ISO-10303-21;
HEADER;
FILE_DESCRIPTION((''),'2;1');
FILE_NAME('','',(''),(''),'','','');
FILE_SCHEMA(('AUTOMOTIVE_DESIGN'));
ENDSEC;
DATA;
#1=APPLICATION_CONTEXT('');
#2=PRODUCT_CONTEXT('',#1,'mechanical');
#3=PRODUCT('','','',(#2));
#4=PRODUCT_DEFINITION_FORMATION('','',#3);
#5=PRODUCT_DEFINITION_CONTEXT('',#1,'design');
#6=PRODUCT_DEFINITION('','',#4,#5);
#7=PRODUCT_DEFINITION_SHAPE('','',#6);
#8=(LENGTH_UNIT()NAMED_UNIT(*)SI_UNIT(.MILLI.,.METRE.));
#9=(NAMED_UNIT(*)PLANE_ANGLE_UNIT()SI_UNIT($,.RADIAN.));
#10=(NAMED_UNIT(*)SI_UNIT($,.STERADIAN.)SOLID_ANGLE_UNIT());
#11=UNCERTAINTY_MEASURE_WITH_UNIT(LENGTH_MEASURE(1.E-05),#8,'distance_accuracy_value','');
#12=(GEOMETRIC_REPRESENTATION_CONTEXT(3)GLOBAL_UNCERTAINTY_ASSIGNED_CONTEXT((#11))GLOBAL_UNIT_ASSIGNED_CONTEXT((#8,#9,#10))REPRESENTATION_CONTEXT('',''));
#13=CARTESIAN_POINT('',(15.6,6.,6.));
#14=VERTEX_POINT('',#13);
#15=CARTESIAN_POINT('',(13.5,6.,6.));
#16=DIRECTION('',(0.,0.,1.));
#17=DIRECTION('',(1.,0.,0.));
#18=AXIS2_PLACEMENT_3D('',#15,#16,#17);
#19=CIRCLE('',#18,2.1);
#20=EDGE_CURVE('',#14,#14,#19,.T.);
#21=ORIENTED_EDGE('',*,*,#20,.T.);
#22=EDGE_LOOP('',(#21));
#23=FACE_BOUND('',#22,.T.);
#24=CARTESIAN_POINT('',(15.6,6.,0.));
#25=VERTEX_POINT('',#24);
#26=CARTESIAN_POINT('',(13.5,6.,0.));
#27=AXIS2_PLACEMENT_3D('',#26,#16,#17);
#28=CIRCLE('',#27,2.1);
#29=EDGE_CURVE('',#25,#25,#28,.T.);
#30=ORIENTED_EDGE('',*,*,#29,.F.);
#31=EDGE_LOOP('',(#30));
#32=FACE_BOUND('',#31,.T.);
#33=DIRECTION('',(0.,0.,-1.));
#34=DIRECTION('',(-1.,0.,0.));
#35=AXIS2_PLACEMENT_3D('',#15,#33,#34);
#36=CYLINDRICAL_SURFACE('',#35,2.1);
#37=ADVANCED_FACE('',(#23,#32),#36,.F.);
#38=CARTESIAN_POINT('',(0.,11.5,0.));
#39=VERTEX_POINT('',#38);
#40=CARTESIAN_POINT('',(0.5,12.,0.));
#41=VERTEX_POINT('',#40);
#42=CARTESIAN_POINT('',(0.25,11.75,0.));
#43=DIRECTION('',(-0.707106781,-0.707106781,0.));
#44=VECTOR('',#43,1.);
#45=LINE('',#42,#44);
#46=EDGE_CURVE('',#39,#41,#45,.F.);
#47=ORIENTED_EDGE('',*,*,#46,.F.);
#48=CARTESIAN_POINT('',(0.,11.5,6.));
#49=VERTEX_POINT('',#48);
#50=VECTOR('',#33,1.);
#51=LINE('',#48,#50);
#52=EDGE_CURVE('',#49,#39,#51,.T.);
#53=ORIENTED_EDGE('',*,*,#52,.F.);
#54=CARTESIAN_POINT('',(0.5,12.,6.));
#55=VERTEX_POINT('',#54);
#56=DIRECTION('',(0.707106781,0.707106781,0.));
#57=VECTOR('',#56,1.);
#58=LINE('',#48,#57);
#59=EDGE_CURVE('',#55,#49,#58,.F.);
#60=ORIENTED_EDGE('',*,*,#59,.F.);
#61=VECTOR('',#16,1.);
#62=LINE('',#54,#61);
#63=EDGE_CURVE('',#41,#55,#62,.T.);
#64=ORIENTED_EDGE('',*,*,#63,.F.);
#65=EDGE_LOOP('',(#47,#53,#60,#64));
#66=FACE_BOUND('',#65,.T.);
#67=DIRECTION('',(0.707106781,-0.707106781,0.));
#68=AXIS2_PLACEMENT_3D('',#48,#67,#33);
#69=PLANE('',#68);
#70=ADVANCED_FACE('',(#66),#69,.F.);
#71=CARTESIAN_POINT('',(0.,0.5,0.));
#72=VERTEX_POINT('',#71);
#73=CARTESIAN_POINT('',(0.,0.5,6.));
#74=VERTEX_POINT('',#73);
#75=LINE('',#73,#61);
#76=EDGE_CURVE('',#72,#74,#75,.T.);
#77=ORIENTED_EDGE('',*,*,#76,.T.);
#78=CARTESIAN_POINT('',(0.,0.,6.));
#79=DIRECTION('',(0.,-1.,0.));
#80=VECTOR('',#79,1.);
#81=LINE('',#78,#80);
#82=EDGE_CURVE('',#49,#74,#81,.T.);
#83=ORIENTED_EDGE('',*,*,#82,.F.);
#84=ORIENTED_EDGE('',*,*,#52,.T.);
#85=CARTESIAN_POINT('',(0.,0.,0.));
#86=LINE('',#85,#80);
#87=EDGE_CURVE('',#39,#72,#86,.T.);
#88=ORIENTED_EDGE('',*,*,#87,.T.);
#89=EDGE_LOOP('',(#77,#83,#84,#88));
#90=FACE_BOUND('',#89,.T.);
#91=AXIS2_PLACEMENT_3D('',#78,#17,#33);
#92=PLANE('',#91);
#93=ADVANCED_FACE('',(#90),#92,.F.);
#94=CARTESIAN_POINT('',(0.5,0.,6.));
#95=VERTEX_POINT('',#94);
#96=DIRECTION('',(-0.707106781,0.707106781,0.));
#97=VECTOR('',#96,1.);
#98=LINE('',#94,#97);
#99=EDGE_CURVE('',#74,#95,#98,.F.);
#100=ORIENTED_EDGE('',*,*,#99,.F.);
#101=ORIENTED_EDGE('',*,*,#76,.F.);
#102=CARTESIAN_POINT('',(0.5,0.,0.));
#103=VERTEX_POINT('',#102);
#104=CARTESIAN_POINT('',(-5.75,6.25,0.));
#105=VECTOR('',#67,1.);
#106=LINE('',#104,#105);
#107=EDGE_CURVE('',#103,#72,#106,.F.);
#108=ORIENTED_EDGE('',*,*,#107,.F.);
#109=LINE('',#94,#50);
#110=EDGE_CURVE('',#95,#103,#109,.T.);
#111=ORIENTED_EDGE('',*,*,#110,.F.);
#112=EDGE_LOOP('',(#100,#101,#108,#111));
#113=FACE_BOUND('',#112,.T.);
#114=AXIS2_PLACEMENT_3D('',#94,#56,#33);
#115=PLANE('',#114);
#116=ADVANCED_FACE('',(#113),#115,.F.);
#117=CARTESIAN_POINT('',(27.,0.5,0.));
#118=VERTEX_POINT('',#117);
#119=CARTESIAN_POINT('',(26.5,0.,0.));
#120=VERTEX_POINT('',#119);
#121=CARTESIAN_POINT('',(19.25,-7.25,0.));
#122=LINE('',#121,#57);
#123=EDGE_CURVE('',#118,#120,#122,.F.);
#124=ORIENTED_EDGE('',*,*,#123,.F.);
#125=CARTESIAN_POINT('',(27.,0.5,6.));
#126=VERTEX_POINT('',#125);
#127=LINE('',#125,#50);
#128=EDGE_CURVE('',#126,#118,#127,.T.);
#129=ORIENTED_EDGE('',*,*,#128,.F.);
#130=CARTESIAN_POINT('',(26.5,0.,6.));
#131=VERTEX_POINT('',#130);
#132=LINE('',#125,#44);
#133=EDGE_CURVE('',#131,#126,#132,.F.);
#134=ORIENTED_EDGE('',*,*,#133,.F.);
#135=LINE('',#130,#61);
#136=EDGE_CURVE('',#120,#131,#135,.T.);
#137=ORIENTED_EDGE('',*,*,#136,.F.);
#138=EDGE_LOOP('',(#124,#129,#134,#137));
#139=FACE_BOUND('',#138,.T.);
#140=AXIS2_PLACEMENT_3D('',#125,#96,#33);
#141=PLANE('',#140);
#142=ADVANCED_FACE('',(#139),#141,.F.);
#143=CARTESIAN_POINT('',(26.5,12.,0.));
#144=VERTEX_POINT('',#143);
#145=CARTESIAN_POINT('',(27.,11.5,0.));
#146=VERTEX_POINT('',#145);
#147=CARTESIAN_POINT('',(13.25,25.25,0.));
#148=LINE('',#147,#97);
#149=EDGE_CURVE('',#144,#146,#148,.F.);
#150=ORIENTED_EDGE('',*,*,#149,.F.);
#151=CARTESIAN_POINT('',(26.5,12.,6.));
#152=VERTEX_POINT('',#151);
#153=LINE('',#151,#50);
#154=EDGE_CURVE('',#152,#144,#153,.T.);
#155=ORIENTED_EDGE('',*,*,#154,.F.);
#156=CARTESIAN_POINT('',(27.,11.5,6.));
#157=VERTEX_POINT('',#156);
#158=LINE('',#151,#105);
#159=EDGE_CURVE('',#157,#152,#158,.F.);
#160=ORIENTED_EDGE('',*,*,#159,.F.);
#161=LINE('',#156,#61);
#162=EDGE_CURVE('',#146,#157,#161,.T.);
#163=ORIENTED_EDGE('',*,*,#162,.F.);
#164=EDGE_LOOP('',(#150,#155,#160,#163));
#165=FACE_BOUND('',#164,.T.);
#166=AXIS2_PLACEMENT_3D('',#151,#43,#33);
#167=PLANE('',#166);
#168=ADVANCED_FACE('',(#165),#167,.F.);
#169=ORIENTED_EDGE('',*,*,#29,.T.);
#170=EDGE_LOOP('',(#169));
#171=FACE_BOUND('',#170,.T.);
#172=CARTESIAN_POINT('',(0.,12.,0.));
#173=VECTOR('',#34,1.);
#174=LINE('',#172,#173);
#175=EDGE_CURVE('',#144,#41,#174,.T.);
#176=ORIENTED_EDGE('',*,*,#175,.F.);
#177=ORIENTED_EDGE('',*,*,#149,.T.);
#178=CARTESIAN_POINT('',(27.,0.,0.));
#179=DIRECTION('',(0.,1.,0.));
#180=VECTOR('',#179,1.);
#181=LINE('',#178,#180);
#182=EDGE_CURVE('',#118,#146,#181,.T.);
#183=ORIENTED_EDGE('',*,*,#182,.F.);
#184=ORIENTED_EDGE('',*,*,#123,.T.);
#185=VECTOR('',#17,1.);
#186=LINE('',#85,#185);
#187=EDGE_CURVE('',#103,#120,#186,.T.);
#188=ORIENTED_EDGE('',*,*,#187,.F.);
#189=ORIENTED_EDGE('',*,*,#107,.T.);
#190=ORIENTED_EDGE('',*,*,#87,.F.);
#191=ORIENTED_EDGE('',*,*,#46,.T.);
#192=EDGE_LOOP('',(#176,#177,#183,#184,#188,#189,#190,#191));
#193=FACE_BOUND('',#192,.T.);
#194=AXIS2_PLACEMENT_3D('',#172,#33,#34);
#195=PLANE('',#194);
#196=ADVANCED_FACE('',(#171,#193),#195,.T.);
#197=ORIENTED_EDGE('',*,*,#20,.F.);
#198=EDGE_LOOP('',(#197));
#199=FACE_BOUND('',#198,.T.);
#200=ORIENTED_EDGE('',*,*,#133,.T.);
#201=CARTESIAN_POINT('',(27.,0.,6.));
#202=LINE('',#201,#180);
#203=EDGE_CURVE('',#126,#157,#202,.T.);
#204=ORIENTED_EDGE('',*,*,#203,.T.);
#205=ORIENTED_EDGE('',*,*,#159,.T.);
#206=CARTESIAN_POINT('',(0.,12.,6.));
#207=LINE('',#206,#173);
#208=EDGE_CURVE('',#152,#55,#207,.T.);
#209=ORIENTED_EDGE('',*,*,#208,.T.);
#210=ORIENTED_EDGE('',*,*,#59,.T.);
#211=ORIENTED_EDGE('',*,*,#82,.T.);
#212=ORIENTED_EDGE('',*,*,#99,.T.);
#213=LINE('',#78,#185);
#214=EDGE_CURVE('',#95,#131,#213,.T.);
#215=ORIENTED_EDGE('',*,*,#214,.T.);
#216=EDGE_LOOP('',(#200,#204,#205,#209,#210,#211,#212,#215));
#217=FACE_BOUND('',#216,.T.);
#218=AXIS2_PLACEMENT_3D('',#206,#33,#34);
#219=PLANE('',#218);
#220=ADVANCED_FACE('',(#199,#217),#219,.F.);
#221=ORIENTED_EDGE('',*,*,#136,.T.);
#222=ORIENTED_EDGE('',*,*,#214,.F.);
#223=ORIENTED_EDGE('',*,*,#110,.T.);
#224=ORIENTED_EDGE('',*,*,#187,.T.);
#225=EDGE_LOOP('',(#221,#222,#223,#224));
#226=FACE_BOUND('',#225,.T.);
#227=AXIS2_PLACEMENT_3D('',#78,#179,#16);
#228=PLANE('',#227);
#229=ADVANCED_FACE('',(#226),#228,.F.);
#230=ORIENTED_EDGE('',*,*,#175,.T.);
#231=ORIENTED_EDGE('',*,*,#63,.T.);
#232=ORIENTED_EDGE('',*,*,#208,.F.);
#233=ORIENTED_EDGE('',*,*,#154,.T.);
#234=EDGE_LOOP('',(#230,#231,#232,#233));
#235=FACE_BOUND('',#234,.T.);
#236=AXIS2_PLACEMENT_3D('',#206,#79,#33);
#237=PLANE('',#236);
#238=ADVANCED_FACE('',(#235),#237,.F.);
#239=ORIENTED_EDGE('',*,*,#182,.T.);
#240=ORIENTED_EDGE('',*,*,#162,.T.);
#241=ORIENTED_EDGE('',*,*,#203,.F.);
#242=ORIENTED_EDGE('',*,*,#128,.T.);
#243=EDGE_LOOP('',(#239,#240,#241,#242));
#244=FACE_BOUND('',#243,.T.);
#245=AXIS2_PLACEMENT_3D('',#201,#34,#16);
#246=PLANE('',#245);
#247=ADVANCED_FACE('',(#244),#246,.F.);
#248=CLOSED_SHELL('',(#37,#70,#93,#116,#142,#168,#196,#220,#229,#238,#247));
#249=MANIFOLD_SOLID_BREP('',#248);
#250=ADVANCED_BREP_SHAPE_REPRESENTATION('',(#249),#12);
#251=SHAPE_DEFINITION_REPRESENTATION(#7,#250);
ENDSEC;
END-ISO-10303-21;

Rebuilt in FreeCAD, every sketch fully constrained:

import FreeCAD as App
import Part
import Sketcher
from FreeCAD import Vector


def edges_at(feature, points):
    """Names of the edges that pass closest to the given points."""
    edges = feature.Shape.Edges
    near = lambda p: min(range(len(edges)), key=lambda i: edges[i].distToShape(Part.Vertex(*p))[0])
    return sorted({f"Edge{near(p) + 1}" for p in points})


def add_polygon(sketch, points):
    """Adds a closed chain of lines whose ends are joined by coincident constraints."""
    first, n = sketch.GeometryCount, len(points)
    for a, b in zip(points, points[1:] + points[:1]):
        sketch.addGeometry(Part.LineSegment(App.Vector(*a, 0), App.Vector(*b, 0)), False)
    for i in range(n):
        sketch.addConstraint(Sketcher.Constraint("Coincident", first + i, 2, first + (i + 1) % n, 1))

doc = App.newDocument("Part")
body = doc.addObject("PartDesign::Body", "Body")

sketch1 = body.newObject("Sketcher::SketchObject", "Sketch")
sketch1.AttachmentSupport = (doc.getObject("XY_Plane"), [""])
sketch1.MapMode = "FlatFace"
add_polygon(sketch1, [(0, 12), (0, 0), (27, 0), (27, 12)])
sketch1.addGeometry(Part.Circle(Vector(13.5, 6, 0), Vector(0, 0, 1), 2.1), False)
sketch1.addConstraint(Sketcher.Constraint("Vertical", 0))
sketch1.addConstraint(Sketcher.Constraint("Horizontal", 1))
sketch1.addConstraint(Sketcher.Constraint("Vertical", 2))
sketch1.addConstraint(Sketcher.Constraint("Horizontal", 3))
sketch1.addConstraint(Sketcher.Constraint("Coincident", 0, 2, -1, 1))
sketch1.addConstraint(Sketcher.Constraint("Diameter", 4, 4.2))
sketch1.addConstraint(Sketcher.Constraint("DistanceX", 1, 1, 1, 2, 27.0))
sketch1.addConstraint(Sketcher.Constraint("DistanceY", 0, 2, 0, 1, 12.0))
sketch1.addConstraint(Sketcher.Constraint("DistanceY", -1, 1, 4, 3, 6.0))
sketch1.addConstraint(Sketcher.Constraint("DistanceX", -1, 1, 4, 3, 13.5))
pad1 = body.newObject("PartDesign::Pad", "Pad")
pad1.Profile = sketch1
pad1.Length = 6
doc.recompute()

chamfer = body.newObject("PartDesign::Chamfer", "Chamfer")
chamfer.Base = (pad1, edges_at(pad1, [
    (0, 12, 3),
    (27, 12, 3),
    (27, 0, 3),
    (0, 0, 3),
]))
chamfer.Size = 0.5

doc.recompute()
